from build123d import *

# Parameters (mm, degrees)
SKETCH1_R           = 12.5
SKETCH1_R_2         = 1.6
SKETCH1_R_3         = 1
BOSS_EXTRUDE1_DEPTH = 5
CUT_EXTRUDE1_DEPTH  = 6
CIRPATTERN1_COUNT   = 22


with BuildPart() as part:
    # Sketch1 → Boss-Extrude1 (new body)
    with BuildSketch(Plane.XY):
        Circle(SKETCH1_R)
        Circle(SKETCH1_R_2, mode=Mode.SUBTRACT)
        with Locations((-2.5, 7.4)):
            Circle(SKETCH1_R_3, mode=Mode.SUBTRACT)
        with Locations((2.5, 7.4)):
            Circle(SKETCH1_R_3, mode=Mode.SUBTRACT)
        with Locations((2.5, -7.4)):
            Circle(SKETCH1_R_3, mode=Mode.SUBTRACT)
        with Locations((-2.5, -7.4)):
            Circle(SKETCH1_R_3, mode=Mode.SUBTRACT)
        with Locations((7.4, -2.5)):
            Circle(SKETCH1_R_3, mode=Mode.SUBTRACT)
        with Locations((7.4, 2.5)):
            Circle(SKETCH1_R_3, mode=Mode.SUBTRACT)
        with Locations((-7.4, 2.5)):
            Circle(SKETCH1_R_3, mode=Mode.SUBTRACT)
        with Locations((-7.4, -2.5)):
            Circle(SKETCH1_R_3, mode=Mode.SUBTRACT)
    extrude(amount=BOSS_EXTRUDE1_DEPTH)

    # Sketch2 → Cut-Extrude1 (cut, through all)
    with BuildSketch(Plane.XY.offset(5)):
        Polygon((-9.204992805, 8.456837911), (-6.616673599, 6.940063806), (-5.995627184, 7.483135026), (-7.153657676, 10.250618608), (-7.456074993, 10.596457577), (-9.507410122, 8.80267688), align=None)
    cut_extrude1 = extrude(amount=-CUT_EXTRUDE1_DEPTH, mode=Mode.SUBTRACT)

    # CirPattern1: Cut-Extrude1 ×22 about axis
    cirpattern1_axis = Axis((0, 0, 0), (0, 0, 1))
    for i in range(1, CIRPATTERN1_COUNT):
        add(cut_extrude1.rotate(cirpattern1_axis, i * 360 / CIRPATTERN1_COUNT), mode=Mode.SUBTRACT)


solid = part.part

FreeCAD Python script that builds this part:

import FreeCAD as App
import Part
import Sketcher

V = App.Vector
Q = App.Units.Quantity

doc = App.newDocument("Part")
params = doc.addObject("Spreadsheet::Sheet", "Params")
for row, (alias, value) in enumerate([
    ("sketch1_diameter", "25 mm"),
    ("sketch1_diameter2", "2 mm"),
    ("sketch1_diameter3", "3.2 mm"),
    ("pad1_length", "5 mm"),
    ("sketch2_length", "3 mm"),
], start=1):
    params.set(f"A{row}", alias)
    params.set(f"B{row}", "=" + value)
    params.setAlias(f"B{row}", alias)

body = doc.addObject("PartDesign::Body", "Body")

# Sketch on XY plane
sketch1 = body.newObject("Sketcher::SketchObject", "Sketch")
sketch1.AttachmentSupport = (doc.getObject("XY_Plane"), [""])
sketch1.MapMode = "FlatFace"
sketch1.addGeometry([
    Part.Circle(V(0, 0, 0), V(0, 0, 1), 12.5),  # 0
    Part.Circle(V(-2.5, -7.4, 0), V(0, 0, 1), 1),  # 1
    Part.Circle(V(-7.4, -2.5, 0), V(0, 0, 1), 1),  # 2
    Part.Circle(V(2.5, -7.4, 0), V(0, 0, 1), 1),  # 3
    Part.Circle(V(7.4, -2.5, 0), V(0, 0, 1), 1),  # 4
    Part.Circle(V(-7.4, 2.5, 0), V(0, 0, 1), 1),  # 5
    Part.Circle(V(-2.5, 7.4, 0), V(0, 0, 1), 1),  # 6
    Part.Circle(V(0, 0, 0), V(0, 0, 1), 1.6),  # 7
    Part.Circle(V(7.4, 2.5, 0), V(0, 0, 1), 1),  # 8
    Part.Circle(V(2.5, 7.4, 0), V(0, 0, 1), 1),  # 9
], False)
sketch1.addConstraint([
    Sketcher.Constraint("Coincident", 0, 3, -1, 1),
    Sketcher.Constraint("Coincident", 7, 3, -1, 1),
    Sketcher.Constraint("Equal", 1, 2),
    Sketcher.Constraint("Equal", 2, 3),
    Sketcher.Constraint("Equal", 3, 4),
    Sketcher.Constraint("Equal", 4, 5),
    Sketcher.Constraint("Equal", 5, 6),
    Sketcher.Constraint("Equal", 6, 8),
    Sketcher.Constraint("Equal", 8, 9),
    Sketcher.Constraint("Symmetric", 4, 3, 5, 3, -1, 1),
    Sketcher.Constraint("Symmetric", 3, 3, 6, 3, -1, 1),
    Sketcher.Constraint("Symmetric", 2, 3, 8, 3, -1, 1),
    Sketcher.Constraint("Symmetric", 1, 3, 9, 3, -1, 1),
    Sketcher.Constraint("Symmetric", 1, 3, 3, 3, -2),
    Sketcher.Constraint("Symmetric", 2, 3, 4, 3, -2),
    Sketcher.Constraint("Diameter", 0, Q("25 mm")),
    Sketcher.Constraint("Diameter", 1, Q("2 mm")),
    Sketcher.Constraint("Diameter", 7, Q("3.2 mm")),
    Sketcher.Constraint("DistanceX", 1, 3, 3, 3, Q("5 mm")),
    Sketcher.Constraint("DistanceY", 2, 3, 5, 3, Q("5 mm")),
    Sketcher.Constraint("DistanceY", 1, 3, -1, 1, Q("7.4 mm")),
    Sketcher.Constraint("DistanceX", 2, 3, -1, 1, Q("7.4 mm")),
])
sketch1.setExpression("Constraints[15]", "Params.sketch1_diameter")
sketch1.setExpression("Constraints[16]", "Params.sketch1_diameter2")
sketch1.setExpression("Constraints[17]", "Params.sketch1_diameter3")
pad1 = body.newObject("PartDesign::Pad", "Pad")
pad1.Profile = sketch1
pad1.setExpression("Length", "Params.pad1_length")

# Sketch on XY plane
sketch2 = body.newObject("Sketcher::SketchObject", "Sketch001")
sketch2.AttachmentSupport = (doc.getObject("XY_Plane"), [""])
sketch2.MapMode = "FlatFace"
sketch2.AttachmentOffset = App.Placement(V(0, 0, 5), App.Rotation())
sketch2.addGeometry([
    Part.LineSegment(V(-9.204993, 8.456838, 0), V(-6.616674, 6.940064, 0)),  # 0
    Part.LineSegment(V(-6.616674, 6.940064, 0), V(-5.995627, 7.483135, 0)),  # 1
    Part.LineSegment(V(-5.995627, 7.483135, 0), V(-7.153658, 10.250619, 0)),  # 2
    Part.LineSegment(V(-7.153658, 10.250619, 0), V(-7.456075, 10.596458, 0)),  # 3
    Part.LineSegment(V(-7.456075, 10.596458, 0), V(-9.50741, 8.802677, 0)),  # 4
    Part.LineSegment(V(-9.50741, 8.802677, 0), V(-9.204993, 8.456838, 0)),  # 5
], False)
sketch2.addConstraint([
    Sketcher.Constraint("Coincident", 0, 2, 1, 1),
    Sketcher.Constraint("Coincident", 1, 2, 2, 1),
    Sketcher.Constraint("Coincident", 2, 2, 3, 1),
    Sketcher.Constraint("Coincident", 3, 2, 4, 1),
    Sketcher.Constraint("Coincident", 4, 2, 5, 1),
    Sketcher.Constraint("Coincident", 5, 2, 0, 1),
    Sketcher.Constraint("Perpendicular", 1, 3),
    Sketcher.Constraint("Perpendicular", 3, 4),
    Sketcher.Constraint("Perpendicular", 4, 5),
    Sketcher.Constraint("Equal", 0, 2),
    Sketcher.Constraint("Equal", 3, 5),
    Sketcher.Constraint("Distance", 0, Q("3 mm")),
    Sketcher.Constraint("Distance", 1, Q("0.825 mm")),
    Sketcher.Constraint("Distance", 4, Q("2.725 mm")),
    Sketcher.Constraint("DistanceX", 3, 2, 0, 2, Q("0.839401 mm")),
    Sketcher.Constraint("DistanceY", -1, 1, 2, 2, Q("10.250619 mm")),
    Sketcher.Constraint("DistanceX", 4, 2, -1, 1, Q("9.50741 mm")),
    Sketcher.Constraint("DistanceY", 0, 2, 1, 2, Q("0.543071 mm")),
])
sketch2.setExpression("Constraints[11]", "Params.sketch2_length")
pocket1 = body.newObject("PartDesign::Pocket", "Pocket")
pocket1.Profile = sketch2
pocket1.Type = "ThroughAll"
doc.recompute()

polarpattern = body.newObject("PartDesign::PolarPattern", "PolarPattern")
polarpattern.Originals = [pocket1]
polarpattern.Axis = (doc.getObject("Z_Axis"), [""])
polarpattern.Angle = 360
polarpattern.Occurrences = 22
body.Tip = polarpattern

doc.recompute()
